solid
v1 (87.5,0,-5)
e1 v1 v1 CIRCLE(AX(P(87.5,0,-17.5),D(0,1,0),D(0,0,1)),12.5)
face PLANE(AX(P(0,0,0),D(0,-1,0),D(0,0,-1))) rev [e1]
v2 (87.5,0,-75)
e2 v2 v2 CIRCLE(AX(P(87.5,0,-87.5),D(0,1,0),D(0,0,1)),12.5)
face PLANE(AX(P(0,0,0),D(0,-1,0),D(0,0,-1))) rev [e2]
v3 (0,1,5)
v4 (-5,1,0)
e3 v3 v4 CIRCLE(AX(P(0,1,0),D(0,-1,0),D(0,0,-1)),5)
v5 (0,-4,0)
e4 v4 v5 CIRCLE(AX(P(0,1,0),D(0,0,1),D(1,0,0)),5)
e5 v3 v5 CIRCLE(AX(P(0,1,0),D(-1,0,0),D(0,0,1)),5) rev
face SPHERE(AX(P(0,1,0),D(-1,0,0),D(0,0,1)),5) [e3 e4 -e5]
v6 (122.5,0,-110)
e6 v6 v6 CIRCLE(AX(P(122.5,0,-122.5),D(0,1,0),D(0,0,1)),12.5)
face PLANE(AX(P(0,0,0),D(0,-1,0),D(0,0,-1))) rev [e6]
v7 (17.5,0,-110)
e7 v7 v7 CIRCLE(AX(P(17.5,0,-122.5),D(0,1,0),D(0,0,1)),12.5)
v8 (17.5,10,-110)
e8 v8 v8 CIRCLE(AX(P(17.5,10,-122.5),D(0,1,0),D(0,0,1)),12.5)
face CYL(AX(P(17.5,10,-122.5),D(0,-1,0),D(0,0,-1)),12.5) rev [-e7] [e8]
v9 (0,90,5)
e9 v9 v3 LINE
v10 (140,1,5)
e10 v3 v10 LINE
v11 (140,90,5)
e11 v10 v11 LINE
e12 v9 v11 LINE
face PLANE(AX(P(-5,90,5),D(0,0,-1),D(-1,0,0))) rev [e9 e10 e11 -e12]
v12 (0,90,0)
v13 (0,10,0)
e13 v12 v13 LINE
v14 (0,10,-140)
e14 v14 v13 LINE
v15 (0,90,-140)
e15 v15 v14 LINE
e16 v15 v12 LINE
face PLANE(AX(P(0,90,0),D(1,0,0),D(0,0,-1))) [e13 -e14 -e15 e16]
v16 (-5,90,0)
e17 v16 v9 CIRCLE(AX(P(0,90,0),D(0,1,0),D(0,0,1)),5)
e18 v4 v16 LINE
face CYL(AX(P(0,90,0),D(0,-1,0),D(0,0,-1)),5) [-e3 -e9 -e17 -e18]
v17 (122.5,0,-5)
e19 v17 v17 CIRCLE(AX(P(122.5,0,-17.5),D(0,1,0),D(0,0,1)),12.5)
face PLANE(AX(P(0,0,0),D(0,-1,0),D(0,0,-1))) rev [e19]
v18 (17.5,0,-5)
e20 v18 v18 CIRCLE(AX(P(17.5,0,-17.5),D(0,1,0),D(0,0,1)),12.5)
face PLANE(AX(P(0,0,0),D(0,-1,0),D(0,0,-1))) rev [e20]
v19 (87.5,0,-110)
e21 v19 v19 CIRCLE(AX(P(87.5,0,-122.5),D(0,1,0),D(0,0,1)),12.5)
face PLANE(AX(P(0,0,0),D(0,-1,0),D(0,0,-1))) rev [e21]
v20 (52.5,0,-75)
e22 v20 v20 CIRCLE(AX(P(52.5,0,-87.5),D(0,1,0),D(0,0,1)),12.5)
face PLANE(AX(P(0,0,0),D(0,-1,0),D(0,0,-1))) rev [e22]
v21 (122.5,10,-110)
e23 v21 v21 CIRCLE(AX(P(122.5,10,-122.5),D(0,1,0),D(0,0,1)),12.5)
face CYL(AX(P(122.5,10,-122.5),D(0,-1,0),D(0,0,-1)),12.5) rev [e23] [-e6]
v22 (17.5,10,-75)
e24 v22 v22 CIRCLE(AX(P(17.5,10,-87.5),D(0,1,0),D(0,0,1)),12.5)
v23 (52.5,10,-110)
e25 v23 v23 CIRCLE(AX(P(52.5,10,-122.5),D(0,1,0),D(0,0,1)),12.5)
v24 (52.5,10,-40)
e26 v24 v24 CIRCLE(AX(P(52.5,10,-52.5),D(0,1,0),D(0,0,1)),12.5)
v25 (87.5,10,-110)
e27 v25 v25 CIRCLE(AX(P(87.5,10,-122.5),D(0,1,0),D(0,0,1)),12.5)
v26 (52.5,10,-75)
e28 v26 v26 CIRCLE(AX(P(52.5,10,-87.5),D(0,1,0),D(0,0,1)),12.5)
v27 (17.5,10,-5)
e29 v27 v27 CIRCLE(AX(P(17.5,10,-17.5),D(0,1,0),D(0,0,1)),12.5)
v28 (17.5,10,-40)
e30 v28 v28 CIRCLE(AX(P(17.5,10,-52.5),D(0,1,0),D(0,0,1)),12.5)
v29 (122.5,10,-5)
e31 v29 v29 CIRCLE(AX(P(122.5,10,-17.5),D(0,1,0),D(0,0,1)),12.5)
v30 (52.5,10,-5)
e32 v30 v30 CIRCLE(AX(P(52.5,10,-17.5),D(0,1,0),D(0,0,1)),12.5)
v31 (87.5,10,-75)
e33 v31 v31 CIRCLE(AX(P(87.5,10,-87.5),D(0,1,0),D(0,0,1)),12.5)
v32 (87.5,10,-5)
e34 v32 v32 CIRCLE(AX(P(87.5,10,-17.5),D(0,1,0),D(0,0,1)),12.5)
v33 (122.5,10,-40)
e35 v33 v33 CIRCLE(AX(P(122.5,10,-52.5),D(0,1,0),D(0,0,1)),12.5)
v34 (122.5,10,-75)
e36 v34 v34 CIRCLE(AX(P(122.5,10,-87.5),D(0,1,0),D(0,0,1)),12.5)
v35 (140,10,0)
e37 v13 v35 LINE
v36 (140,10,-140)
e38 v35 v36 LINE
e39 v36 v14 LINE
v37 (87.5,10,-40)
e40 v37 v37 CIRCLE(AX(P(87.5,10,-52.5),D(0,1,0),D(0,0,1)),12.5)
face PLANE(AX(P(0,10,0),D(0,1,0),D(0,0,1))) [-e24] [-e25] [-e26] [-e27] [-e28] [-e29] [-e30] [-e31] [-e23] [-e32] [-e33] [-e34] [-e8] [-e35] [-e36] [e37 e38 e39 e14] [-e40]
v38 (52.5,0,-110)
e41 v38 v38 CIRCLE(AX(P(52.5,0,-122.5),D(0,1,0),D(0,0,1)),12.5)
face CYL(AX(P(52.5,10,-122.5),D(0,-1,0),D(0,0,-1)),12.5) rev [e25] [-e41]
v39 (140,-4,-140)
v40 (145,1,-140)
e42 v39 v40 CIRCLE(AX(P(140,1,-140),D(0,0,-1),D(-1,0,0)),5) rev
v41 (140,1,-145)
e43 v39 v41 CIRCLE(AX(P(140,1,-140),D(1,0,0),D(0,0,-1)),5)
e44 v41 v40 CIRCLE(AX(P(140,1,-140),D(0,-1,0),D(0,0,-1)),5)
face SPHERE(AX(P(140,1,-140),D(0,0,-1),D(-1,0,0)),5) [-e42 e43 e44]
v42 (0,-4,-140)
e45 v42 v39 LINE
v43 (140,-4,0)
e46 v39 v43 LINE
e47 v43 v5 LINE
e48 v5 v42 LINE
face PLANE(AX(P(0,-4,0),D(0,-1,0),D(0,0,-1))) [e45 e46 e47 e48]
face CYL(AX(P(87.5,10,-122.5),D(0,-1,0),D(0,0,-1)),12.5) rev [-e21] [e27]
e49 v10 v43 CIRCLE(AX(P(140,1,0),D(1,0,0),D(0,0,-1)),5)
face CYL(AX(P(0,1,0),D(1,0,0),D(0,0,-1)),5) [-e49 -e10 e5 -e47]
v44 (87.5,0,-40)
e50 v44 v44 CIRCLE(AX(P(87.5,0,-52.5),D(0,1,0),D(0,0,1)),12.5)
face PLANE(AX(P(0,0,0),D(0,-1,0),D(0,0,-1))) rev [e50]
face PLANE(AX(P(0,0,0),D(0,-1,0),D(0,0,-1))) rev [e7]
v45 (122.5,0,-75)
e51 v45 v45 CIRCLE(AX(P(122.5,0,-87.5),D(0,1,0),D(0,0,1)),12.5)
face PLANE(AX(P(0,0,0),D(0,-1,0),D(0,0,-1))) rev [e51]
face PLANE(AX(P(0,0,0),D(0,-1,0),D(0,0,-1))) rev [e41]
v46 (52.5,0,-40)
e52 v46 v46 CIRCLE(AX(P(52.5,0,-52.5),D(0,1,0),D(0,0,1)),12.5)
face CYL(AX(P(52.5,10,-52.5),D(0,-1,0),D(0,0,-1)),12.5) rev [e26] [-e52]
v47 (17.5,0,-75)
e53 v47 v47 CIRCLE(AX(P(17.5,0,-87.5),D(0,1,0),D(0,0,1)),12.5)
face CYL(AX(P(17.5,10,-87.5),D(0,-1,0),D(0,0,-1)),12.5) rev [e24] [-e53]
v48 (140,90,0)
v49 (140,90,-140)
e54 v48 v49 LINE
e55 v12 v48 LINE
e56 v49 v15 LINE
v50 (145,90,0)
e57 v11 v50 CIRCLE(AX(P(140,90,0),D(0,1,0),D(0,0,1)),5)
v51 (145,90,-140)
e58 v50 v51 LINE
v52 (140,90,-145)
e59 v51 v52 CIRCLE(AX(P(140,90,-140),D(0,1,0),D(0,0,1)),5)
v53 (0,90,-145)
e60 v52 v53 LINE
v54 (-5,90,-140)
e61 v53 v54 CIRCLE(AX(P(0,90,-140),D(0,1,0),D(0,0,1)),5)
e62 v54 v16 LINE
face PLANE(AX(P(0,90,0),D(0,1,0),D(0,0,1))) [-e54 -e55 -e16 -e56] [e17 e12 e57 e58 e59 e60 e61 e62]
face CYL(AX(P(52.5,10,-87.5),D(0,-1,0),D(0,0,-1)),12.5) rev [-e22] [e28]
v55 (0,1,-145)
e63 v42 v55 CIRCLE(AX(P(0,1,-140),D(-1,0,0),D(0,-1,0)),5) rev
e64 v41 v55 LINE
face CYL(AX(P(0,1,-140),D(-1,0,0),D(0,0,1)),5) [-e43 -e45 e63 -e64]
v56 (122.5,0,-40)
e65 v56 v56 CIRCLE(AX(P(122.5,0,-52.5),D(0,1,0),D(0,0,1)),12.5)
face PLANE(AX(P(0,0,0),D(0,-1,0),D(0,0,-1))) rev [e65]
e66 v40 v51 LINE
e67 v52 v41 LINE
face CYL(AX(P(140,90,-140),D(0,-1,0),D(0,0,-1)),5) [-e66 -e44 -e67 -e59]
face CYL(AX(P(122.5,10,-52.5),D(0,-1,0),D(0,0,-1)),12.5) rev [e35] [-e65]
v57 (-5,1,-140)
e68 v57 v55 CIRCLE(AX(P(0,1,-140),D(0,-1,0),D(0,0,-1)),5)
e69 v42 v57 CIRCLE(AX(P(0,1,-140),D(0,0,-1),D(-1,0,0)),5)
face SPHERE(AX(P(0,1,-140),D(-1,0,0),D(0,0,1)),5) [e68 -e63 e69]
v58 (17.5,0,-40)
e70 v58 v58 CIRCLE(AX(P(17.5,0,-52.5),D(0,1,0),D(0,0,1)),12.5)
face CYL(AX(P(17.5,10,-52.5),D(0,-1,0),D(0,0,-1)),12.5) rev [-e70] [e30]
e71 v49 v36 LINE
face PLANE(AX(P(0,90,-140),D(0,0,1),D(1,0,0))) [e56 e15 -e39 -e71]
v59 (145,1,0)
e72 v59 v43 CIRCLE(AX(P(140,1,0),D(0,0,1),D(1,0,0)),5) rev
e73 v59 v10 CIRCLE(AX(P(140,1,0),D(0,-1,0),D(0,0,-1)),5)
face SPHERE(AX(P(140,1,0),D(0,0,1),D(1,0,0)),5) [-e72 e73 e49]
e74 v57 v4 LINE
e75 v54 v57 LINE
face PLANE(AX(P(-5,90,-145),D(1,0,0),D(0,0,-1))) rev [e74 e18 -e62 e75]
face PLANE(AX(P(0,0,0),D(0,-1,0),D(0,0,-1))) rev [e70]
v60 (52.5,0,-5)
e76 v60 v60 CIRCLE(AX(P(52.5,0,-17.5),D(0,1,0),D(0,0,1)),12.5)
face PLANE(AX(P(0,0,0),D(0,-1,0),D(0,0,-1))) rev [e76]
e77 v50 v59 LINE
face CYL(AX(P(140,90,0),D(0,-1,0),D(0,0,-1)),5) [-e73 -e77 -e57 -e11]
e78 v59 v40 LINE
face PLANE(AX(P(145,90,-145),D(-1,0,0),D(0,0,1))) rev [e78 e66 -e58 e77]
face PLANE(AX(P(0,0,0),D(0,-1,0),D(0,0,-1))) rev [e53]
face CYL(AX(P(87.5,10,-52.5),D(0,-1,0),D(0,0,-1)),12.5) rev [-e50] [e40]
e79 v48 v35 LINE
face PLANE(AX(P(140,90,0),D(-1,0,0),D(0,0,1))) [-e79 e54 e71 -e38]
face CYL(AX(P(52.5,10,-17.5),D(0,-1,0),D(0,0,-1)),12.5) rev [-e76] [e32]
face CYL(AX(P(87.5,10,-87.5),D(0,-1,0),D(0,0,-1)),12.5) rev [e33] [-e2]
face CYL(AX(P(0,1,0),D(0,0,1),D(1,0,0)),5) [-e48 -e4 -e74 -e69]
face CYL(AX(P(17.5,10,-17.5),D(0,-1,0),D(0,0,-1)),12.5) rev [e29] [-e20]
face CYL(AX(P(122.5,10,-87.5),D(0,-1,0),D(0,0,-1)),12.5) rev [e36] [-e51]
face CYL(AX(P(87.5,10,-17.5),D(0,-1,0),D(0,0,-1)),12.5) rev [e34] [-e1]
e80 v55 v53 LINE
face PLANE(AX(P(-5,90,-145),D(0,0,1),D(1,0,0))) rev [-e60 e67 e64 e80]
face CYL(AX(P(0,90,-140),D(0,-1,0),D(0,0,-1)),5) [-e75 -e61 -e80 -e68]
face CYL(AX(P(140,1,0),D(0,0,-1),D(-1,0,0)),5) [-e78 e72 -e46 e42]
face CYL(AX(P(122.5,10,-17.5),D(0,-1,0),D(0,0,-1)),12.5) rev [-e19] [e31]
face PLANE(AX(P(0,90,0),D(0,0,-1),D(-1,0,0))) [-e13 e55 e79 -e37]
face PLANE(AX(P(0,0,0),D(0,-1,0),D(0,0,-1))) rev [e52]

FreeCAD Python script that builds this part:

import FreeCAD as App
import Part
import Sketcher
Q = App.Units.Quantity


def edges_at(feature, points):
    """Names of the edges that pass closest to the given points."""
    edges = feature.Shape.Edges
    near = lambda p: min(range(len(edges)), key=lambda i: edges[i].distToShape(Part.Vertex(*p))[0])
    return sorted({f"Edge{near(p) + 1}" for p in points})


def add_polygon(sketch, points):
    """Adds a closed chain of lines whose ends are joined by coincident constraints."""
    first, n = sketch.GeometryCount, len(points)
    for a, b in zip(points, points[1:] + points[:1]):
        sketch.addGeometry(Part.LineSegment(App.Vector(*a, 0), App.Vector(*b, 0)), False)
    for i in range(n):
        sketch.addConstraint(Sketcher.Constraint("Coincident", first + i, 2, first + (i + 1) % n, 1))

doc = App.newDocument("Part")
params = doc.addObject("Spreadsheet::Sheet", "Params")
for row, (alias, value) in enumerate([
    ("sketch1_width", "150 mm"),
    ("sketch1_width2", "140 mm"),
    ("pad1_length", "90 mm"),
    ("sketch2_width", "150 mm"),
    ("pad2_length", "4 mm"),
    ("sketch3_diameter", "25 mm"),
    ("sketch3_width", "140 mm"),
    ("pad3_length", "10 mm"),
    ("fillet_radius", "5 mm"),
], start=1):
    params.set(f"A{row}", alias)
    params.set(f"B{row}", "=" + value)
    params.setAlias(f"B{row}", alias)

body = doc.addObject("PartDesign::Body", "Body")

# Sketch on XZ plane
sketch1 = doc.addObject("Sketcher::SketchObject", "Sketch")
body.addObject(sketch1)
sketch1.AttachmentSupport = (doc.XZ_Plane, [""])
sketch1.MapMode = "FlatFace"
add_polygon(sketch1, [(-5, -145), (-5, 5), (145, 5), (145, -145)])  # lines 0-3
add_polygon(sketch1, [(140, 0), (0, 0), (0, -140), (140, -140)])  # lines 4-7
sketch1.addConstraint([
    Sketcher.Constraint("Vertical", 0),
    Sketcher.Constraint("Horizontal", 1),
    Sketcher.Constraint("Vertical", 2),
    Sketcher.Constraint("Horizontal", 3),
    Sketcher.Constraint("Horizontal", 4),
    Sketcher.Constraint("Vertical", 5),
    Sketcher.Constraint("Horizontal", 6),
    Sketcher.Constraint("Vertical", 7),
    Sketcher.Constraint("Coincident", 4, 2, -1, 1),
    Sketcher.Constraint("Equal", 3, 0),
    Sketcher.Constraint("Equal", 6, 5),
    Sketcher.Constraint("DistanceX", 1, 1, 1, 2, Q("150 mm")),
    Sketcher.Constraint("DistanceX", 4, 2, 4, 1, Q("140 mm")),
    Sketcher.Constraint("DistanceX", 0, 2, -1, 1, Q("5 mm")),
    Sketcher.Constraint("DistanceY", -1, 1, 0, 2, Q("5 mm")),
])
sketch1.setExpression("Constraints[19]", "Params.sketch1_width")
sketch1.setExpression("Constraints[20]", "Params.sketch1_width2")
pad1 = doc.addObject("PartDesign::Pad", "Pad")
body.addObject(pad1)
pad1.Profile = sketch1
pad1.setExpression("Length", "Params.pad1_length")
pad1.Reversed = True

# Sketch on XZ plane
sketch2 = doc.addObject("Sketcher::SketchObject", "Sketch001")
body.addObject(sketch2)
sketch2.AttachmentSupport = (doc.XZ_Plane, [""])
sketch2.MapMode = "FlatFace"
add_polygon(sketch2, [(-5, 5), (-5, -145), (145, -145), (145, 5)])  # lines 0-3
sketch2.addConstraint([
    Sketcher.Constraint("Vertical", 0),
    Sketcher.Constraint("Horizontal", 1),
    Sketcher.Constraint("Vertical", 2),
    Sketcher.Constraint("Horizontal", 3),
    Sketcher.Constraint("Equal", 3, 0),
    Sketcher.Constraint("DistanceX", 1, 1, 1, 2, Q("150 mm")),
    Sketcher.Constraint("DistanceX", 0, 2, -1, 1, Q("5 mm")),
    Sketcher.Constraint("DistanceY", 0, 2, -1, 1, Q("145 mm")),
])
sketch2.setExpression("Constraints[9]", "Params.sketch2_width")
pad2 = doc.addObject("PartDesign::Pad", "Pad001")
body.addObject(pad2)
pad2.Profile = sketch2
pad2.setExpression("Length", "Params.pad2_length")

# Sketch on XZ plane
sketch3 = doc.addObject("Sketcher::SketchObject", "Sketch002")
body.addObject(sketch3)
sketch3.AttachmentSupport = (doc.XZ_Plane, [""])
sketch3.MapMode = "FlatFace"
add_polygon(sketch3, [(0, -140), (0, 0), (140, 0), (140, -140)])  # lines 0-3
sketch3.addGeometry(Part.Circle(App.Vector(18, -18, 0), App.Vector(0, 0, 1), 12), False)  # 4
sketch3.addGeometry(Part.Circle(App.Vector(52, -18, 0), App.Vector(0, 0, 1), 12), False)  # 5
sketch3.addGeometry(Part.Circle(App.Vector(18, -52, 0), App.Vector(0, 0, 1), 12), False)  # 6
sketch3.addGeometry(Part.Circle(App.Vector(52, -52, 0), App.Vector(0, 0, 1), 12), False)  # 7
sketch3.addGeometry(Part.Circle(App.Vector(88, -18, 0), App.Vector(0, 0, 1), 12), False)  # 8
sketch3.addGeometry(Part.Circle(App.Vector(122, -18, 0), App.Vector(0, 0, 1), 12), False)  # 9
sketch3.addGeometry(Part.Circle(App.Vector(88, -52, 0), App.Vector(0, 0, 1), 12), False)  # 10
sketch3.addGeometry(Part.Circle(App.Vector(122, -52, 0), App.Vector(0, 0, 1), 12), False)  # 11
sketch3.addGeometry(Part.Circle(App.Vector(18, -88, 0), App.Vector(0, 0, 1), 12), False)  # 12
sketch3.addGeometry(Part.Circle(App.Vector(52, -88, 0), App.Vector(0, 0, 1), 12), False)  # 13
sketch3.addGeometry(Part.Circle(App.Vector(18, -122, 0), App.Vector(0, 0, 1), 12), False)  # 14
sketch3.addGeometry(Part.Circle(App.Vector(52, -122, 0), App.Vector(0, 0, 1), 12), False)  # 15
sketch3.addGeometry(Part.Circle(App.Vector(88, -88, 0), App.Vector(0, 0, 1), 12), False)  # 16
sketch3.addGeometry(Part.Circle(App.Vector(122, -88, 0), App.Vector(0, 0, 1), 12), False)  # 17
sketch3.addGeometry(Part.Circle(App.Vector(88, -122, 0), App.Vector(0, 0, 1), 12), False)  # 18
sketch3.addGeometry(Part.Circle(App.Vector(122, -122, 0), App.Vector(0, 0, 1), 12), False)  # 19
sketch3.addConstraint([
    Sketcher.Constraint("Vertical", 0),
    Sketcher.Constraint("Horizontal", 1),
    Sketcher.Constraint("Vertical", 2),
    Sketcher.Constraint("Horizontal", 3),
    Sketcher.Constraint("Coincident", 0, 2, -1, 1),
    Sketcher.Constraint("Equal", 4, 5),
    Sketcher.Constraint("Equal", 5, 6),
    Sketcher.Constraint("Equal", 6, 7),
    Sketcher.Constraint("Equal", 7, 8),
    Sketcher.Constraint("Equal", 8, 9),
    Sketcher.Constraint("Equal", 9, 10),
    Sketcher.Constraint("Equal", 10, 11),
    Sketcher.Constraint("Equal", 11, 12),
    Sketcher.Constraint("Equal", 12, 13),
    Sketcher.Constraint("Equal", 13, 14),
    Sketcher.Constraint("Equal", 14, 15),
    Sketcher.Constraint("Equal", 15, 16),
    Sketcher.Constraint("Equal", 16, 17),
    Sketcher.Constraint("Equal", 17, 18),
    Sketcher.Constraint("Equal", 18, 19),
    Sketcher.Constraint("Horizontal", 4, 3, 5, 3),
    Sketcher.Constraint("Horizontal", 6, 3, 7, 3),
    Sketcher.Constraint("Horizontal", 5, 3, 8, 3),
    Sketcher.Constraint("Horizontal", 8, 3, 9, 3),
    Sketcher.Constraint("Horizontal", 7, 3, 10, 3),
    Sketcher.Constraint("Horizontal", 10, 3, 11, 3),
    Sketcher.Constraint("Horizontal", 12, 3, 13, 3),
    Sketcher.Constraint("Horizontal", 14, 3, 15, 3),
    Sketcher.Constraint("Horizontal", 13, 3, 16, 3),
    Sketcher.Constraint("Horizontal", 16, 3, 17, 3),
    Sketcher.Constraint("Horizontal", 15, 3, 18, 3),
    Sketcher.Constraint("Horizontal", 18, 3, 19, 3),
    Sketcher.Constraint("Vertical", 4, 3, 6, 3),
    Sketcher.Constraint("Vertical", 5, 3, 7, 3),
    Sketcher.Constraint("Vertical", 8, 3, 10, 3),
    Sketcher.Constraint("Vertical", 9, 3, 11, 3),
    Sketcher.Constraint("Vertical", 6, 3, 12, 3),
    Sketcher.Constraint("Vertical", 7, 3, 13, 3),
    Sketcher.Constraint("Vertical", 12, 3, 14, 3),
    Sketcher.Constraint("Vertical", 13, 3, 15, 3),
    Sketcher.Constraint("Vertical", 10, 3, 16, 3),
    Sketcher.Constraint("Vertical", 11, 3, 17, 3),
    Sketcher.Constraint("Vertical", 16, 3, 18, 3),
    Sketcher.Constraint("Vertical", 17, 3, 19, 3),
    Sketcher.Constraint("Equal", 3, 0),
    Sketcher.Constraint("Diameter", 4, Q("25 mm")),
    Sketcher.Constraint("DistanceX", 1, 1, 1, 2, Q("140 mm")),
    Sketcher.Constraint("DistanceX", 4, 3, 5, 3, Q("35 mm")),
    Sketcher.Constraint("DistanceY", 6, 3, 4, 3, Q("35 mm")),
    Sketcher.Constraint("DistanceX", 5, 3, 8, 3, Q("35 mm")),
    Sketcher.Constraint("DistanceX", 8, 3, 9, 3, Q("35 mm")),
    Sketcher.Constraint("DistanceY", 12, 3, 6, 3, Q("35 mm")),
    Sketcher.Constraint("DistanceY", 14, 3, 12, 3, Q("35 mm")),
    Sketcher.Constraint("DistanceX", -1, 1, 4, 3, Q("17.5 mm")),
    Sketcher.Constraint("DistanceY", 4, 3, -1, 1, Q("17.5 mm")),
])
sketch3.setExpression("Constraints[49]", "Params.sketch3_diameter")
sketch3.setExpression("Constraints[50]", "Params.sketch3_width")
pad3 = doc.addObject("PartDesign::Pad", "Pad002")
body.addObject(pad3)
pad3.Profile = sketch3
pad3.setExpression("Length", "Params.pad3_length")
pad3.Reversed = True
doc.recompute()

fillet = doc.addObject("PartDesign::Fillet", "Fillet")
body.addObject(fillet)
fillet.Base = (pad3, edges_at(pad3, [
    (145, -4, -70),
    (70, -4, 5),
    (-5, -4, -70),
    (70, -4, -145),
    (-5, 43, -145),
    (145, 43, -145),
    (145, 43, 5),
    (-5, 43, 5),
]))
fillet.setExpression("Radius", "Params.fillet_radius")

doc.recompute()
